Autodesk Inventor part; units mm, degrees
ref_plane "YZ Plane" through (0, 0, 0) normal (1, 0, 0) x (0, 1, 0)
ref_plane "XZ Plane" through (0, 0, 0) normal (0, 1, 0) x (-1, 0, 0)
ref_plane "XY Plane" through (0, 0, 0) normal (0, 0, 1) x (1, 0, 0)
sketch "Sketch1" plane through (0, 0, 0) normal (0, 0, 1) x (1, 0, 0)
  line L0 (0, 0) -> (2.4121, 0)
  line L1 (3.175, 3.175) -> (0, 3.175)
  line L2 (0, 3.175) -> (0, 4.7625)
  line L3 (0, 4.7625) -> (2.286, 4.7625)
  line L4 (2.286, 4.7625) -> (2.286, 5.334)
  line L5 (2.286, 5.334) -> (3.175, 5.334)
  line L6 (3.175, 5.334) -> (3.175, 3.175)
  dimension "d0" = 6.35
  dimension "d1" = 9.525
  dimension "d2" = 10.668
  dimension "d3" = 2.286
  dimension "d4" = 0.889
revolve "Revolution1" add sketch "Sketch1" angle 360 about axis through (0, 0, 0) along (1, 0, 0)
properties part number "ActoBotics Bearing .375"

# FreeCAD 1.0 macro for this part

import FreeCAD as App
import Part
import Sketcher
from FreeCAD import Vector
Q = App.Units.Quantity


def add_polygon(sketch, points):
    """Adds a closed chain of lines whose ends are joined by coincident constraints."""
    first, n = sketch.GeometryCount, len(points)
    for a, b in zip(points, points[1:] + points[:1]):
        sketch.addGeometry(Part.LineSegment(App.Vector(*a, 0), App.Vector(*b, 0)), False)
    for i in range(n):
        sketch.addConstraint(Sketcher.Constraint("Coincident", first + i, 2, first + (i + 1) % n, 1))

doc = App.newDocument("Part")
body = doc.addObject("PartDesign::Body", "Body")

sketch1 = body.newObject("Sketcher::SketchObject", "Sketch")
sketch1.AttachmentSupport = (doc.getObject("XY_Plane"), [""])
sketch1.MapMode = "FlatFace"
add_polygon(sketch1, [(0, 3.2), (3.2, 3.2), (3.2, 5.3), (2.3, 5.3), (2.3, 4.8), (0, 4.8)])
sketch1.addConstraint(Sketcher.Constraint("Horizontal", 0))
sketch1.addConstraint(Sketcher.Constraint("Vertical", 1))
sketch1.addConstraint(Sketcher.Constraint("Horizontal", 2))
sketch1.addConstraint(Sketcher.Constraint("Vertical", 3))
sketch1.addConstraint(Sketcher.Constraint("Horizontal", 4))
sketch1.addConstraint(Sketcher.Constraint("Vertical", 5))
sketch1.addConstraint(Sketcher.Constraint("PointOnObject", 4, 2, -2))
sketch1.addConstraint(Sketcher.Constraint("DistanceX", 4, 2, 4, 1, Q("0.09 in")))
sketch1.addConstraint(Sketcher.Constraint("DistanceX", 2, 2, 2, 1, Q("0.035 in")))
sketch1.addConstraint(Sketcher.Constraint("DistanceY", 1, 1, 1, 2, Q("0.085 in")))
sketch1.addConstraint(Sketcher.Constraint("DistanceY", 5, 2, 5, 1, Q("0.0625 in")))
sketch1.addConstraint(Sketcher.Constraint("DistanceY", -1, 1, 1, 2, Q("0.21 in")))
revolution = body.newObject("PartDesign::Revolution", "Revolution")
revolution.Profile = sketch1
revolution.ReferenceAxis = (sketch1, ["H_Axis"])
revolution.Angle = 360

doc.recompute()
